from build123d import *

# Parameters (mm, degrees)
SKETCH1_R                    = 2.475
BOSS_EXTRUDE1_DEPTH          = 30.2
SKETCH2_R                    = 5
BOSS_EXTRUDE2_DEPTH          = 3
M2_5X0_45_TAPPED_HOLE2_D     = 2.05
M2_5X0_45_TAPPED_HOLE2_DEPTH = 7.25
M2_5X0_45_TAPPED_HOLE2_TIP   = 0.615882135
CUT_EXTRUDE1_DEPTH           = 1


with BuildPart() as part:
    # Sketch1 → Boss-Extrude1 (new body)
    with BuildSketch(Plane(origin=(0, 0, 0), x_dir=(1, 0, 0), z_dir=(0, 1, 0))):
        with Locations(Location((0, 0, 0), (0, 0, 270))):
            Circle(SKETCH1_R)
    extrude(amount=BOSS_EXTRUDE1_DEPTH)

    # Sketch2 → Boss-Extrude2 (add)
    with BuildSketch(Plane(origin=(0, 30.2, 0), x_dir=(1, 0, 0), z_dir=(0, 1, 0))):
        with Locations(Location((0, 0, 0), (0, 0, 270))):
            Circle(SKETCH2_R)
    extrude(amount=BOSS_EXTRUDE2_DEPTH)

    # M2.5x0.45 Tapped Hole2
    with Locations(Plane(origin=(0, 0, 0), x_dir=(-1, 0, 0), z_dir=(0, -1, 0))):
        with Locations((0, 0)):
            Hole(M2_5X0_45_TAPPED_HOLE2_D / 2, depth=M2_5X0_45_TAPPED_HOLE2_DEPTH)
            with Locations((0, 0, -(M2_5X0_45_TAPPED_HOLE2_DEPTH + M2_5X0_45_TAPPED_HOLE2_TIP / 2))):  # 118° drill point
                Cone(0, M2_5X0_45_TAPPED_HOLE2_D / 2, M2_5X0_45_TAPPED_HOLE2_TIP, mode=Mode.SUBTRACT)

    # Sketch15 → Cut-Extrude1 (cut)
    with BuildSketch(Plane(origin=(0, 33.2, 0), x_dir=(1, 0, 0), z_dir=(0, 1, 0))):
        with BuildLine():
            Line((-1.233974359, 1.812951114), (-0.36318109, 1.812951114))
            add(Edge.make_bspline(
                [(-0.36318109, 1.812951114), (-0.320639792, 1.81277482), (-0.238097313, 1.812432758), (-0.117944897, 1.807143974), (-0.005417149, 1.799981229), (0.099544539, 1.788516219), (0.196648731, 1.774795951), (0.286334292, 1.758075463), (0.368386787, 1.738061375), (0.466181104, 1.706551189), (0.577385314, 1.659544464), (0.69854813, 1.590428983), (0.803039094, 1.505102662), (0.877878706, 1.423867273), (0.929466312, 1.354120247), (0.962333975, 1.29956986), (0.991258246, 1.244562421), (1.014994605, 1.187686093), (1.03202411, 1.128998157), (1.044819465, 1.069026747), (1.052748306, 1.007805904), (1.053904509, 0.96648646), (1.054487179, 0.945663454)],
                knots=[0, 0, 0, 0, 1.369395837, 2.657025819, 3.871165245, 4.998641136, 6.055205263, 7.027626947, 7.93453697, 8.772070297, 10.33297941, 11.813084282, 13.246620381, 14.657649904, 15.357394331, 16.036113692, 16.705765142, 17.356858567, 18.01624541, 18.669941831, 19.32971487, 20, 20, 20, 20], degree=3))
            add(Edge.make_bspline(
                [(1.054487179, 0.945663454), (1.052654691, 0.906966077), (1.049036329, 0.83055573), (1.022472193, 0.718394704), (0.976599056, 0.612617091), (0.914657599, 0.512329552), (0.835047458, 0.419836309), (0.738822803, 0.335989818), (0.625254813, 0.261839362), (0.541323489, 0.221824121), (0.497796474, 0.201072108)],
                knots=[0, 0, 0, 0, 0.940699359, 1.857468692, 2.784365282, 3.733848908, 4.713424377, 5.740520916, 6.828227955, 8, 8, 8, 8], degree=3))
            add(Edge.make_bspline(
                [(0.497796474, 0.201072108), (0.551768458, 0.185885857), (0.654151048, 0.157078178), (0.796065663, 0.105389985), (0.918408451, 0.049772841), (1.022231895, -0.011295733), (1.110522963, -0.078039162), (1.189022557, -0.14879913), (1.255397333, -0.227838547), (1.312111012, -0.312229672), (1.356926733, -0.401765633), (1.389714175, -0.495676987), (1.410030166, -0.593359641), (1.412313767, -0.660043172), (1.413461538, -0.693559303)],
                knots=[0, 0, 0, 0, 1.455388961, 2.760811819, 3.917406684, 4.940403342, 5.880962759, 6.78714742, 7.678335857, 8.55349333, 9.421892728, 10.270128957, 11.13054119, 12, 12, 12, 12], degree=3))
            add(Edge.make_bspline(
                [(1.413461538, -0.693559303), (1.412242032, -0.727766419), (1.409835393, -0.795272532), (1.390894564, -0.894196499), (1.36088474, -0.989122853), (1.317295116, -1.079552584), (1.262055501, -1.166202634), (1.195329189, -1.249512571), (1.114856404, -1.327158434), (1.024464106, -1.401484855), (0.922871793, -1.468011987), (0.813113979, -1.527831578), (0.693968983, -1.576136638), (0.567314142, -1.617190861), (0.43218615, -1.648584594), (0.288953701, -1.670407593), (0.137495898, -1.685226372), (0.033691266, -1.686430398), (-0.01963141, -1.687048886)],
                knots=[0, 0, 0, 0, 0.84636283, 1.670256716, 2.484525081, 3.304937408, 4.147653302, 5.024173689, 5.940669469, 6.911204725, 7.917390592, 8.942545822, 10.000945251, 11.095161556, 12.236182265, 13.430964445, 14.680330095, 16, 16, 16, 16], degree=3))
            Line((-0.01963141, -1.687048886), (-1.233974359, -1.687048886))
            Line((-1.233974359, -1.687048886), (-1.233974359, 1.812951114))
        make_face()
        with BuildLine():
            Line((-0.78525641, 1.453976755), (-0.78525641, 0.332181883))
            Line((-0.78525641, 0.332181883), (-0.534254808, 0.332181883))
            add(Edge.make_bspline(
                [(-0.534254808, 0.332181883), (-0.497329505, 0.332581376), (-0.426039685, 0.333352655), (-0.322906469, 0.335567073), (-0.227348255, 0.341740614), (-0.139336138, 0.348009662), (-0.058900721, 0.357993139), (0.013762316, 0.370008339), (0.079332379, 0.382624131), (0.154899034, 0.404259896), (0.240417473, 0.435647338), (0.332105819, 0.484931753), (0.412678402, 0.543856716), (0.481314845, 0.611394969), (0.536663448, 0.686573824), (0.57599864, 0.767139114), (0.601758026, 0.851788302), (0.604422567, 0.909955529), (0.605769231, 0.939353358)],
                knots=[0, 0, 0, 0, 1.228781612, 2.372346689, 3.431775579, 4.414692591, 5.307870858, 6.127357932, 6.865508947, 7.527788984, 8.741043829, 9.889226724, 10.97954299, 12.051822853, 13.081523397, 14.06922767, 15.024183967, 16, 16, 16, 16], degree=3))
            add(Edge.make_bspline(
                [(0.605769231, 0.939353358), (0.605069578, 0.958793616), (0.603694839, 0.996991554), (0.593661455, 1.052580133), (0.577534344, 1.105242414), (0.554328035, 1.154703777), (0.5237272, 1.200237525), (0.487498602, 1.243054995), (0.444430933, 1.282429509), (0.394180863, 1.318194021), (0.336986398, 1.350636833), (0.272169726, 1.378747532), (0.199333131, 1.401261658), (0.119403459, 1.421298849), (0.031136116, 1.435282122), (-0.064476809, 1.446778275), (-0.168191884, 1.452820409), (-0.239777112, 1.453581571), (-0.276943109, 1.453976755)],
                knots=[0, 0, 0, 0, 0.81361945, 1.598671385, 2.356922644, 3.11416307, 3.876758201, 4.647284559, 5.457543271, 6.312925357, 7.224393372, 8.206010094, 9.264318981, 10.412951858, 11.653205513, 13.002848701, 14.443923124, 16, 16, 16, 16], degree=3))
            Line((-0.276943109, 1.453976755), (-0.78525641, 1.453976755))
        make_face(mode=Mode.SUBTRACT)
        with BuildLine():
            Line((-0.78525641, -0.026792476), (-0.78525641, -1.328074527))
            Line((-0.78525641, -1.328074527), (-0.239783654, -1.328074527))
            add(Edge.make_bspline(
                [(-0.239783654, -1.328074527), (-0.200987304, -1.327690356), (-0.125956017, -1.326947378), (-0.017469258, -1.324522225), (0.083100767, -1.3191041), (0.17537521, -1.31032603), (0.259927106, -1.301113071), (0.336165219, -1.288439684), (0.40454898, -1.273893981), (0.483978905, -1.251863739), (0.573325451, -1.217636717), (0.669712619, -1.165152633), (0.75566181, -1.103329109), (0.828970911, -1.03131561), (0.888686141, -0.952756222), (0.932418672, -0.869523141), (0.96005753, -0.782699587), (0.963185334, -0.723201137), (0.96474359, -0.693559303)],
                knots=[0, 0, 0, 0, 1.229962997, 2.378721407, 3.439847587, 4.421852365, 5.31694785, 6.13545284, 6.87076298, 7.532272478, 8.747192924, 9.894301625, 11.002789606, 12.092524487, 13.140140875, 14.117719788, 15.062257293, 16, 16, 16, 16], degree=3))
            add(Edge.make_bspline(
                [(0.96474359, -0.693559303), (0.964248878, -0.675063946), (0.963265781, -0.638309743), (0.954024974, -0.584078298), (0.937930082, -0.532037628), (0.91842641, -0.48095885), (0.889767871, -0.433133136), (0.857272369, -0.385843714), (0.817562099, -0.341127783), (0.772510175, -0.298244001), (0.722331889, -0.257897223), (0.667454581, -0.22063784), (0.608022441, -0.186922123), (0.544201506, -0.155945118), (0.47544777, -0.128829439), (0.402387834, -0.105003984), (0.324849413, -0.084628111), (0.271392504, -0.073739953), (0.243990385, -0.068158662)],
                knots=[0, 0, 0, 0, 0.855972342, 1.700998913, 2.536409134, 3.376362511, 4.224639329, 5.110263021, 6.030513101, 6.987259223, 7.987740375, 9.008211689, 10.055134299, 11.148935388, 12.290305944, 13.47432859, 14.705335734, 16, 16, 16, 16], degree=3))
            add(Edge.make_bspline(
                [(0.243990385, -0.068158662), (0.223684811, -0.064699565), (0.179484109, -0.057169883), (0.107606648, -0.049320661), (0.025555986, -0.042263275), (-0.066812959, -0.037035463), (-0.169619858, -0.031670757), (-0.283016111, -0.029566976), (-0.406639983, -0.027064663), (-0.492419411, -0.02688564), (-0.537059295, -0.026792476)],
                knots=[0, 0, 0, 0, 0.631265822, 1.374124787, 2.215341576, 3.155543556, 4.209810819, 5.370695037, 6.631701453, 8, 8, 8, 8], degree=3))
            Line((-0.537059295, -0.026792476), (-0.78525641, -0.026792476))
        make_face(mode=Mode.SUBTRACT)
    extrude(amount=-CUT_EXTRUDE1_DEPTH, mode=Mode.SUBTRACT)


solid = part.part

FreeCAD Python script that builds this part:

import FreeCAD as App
import Part
import Sketcher
Q = App.Units.Quantity

doc = App.newDocument("Part")
body = doc.addObject("PartDesign::Body", "Body")

# Sketch on XZ plane
sketch1 = body.newObject("Sketcher::SketchObject", "Sketch")
sketch1.AttachmentSupport = (doc.getObject("XZ_Plane"), [""])
sketch1.MapMode = "FlatFace"
sketch1.addGeometry(Part.Circle(App.Vector(0, 0, 0), App.Vector(0, 0, 1), 2.5), False)
sketch1.addConstraint([
    Sketcher.Constraint("Coincident", 0, 3, -1, 1),
    Sketcher.Constraint("Diameter", 0, Q("4.95 mm")),
])
pad1 = body.newObject("PartDesign::Pad", "Pad")
pad1.Profile = sketch1
pad1.Length = 30.2
pad1.Reversed = True

# Sketch on XZ plane
sketch2 = body.newObject("Sketcher::SketchObject", "Sketch001")
sketch2.AttachmentSupport = (doc.getObject("XZ_Plane"), [""])
sketch2.MapMode = "FlatFace"
sketch2.AttachmentOffset = App.Placement(App.Vector(0, 0, -30.2), App.Rotation())
sketch2.addGeometry(Part.Circle(App.Vector(0, 0, 0), App.Vector(0, 0, 1), 5), False)
sketch2.addConstraint([
    Sketcher.Constraint("Coincident", 0, 3, -1, 1),
    Sketcher.Constraint("Diameter", 0, Q("10 mm")),
])
pad2 = body.newObject("PartDesign::Pad", "Pad001")
pad2.Profile = sketch2
pad2.Length = 3
pad2.Reversed = True

# Sketch on XZ plane
sketch3 = body.newObject("Sketcher::SketchObject", "Sketch002")
sketch3.AttachmentSupport = (doc.getObject("XZ_Plane"), [""])
sketch3.MapMode = "FlatFace"
sketch3.addGeometry(Part.Circle(App.Vector(0, 0, 0), App.Vector(0, 0, 1), 1), False)
sketch3.addConstraint([
    Sketcher.Constraint("Coincident", 0, 3, -1, 1),
    Sketcher.Constraint("Diameter", 0, Q("2.05 mm")),
])
doc.recompute()
hole = body.newObject("PartDesign::Hole", "Hole")
hole.Profile = sketch3
hole.ThreadType = "None"
hole.Diameter = 2.05
hole.DepthType = "Dimension"
hole.Depth = 7.25
hole.DrillPoint = "Angled"
hole.DrillPointAngle = 118

# Sketch on XZ plane
sketch4 = body.newObject("Sketcher::SketchObject", "Sketch003")
sketch4.AttachmentSupport = (doc.getObject("XZ_Plane"), [""])
sketch4.MapMode = "FlatFace"
sketch4.AttachmentOffset = App.Placement(App.Vector(0, 0, -33.2), App.Rotation())
sketch4.addGeometry([
    Part.LineSegment(App.Vector(-0.363181, -1.812951, 0), App.Vector(-1.233974, -1.812951, 0)),  # 0
    Part.LineSegment(App.Vector(-1.233974, -1.812951, 0), App.Vector(-1.233974, 1.687049, 0)),  # 1
    Part.LineSegment(App.Vector(-1.233974, 1.687049, 0), App.Vector(-0.019631, 1.687049, 0)),  # 2
    Part.BSplineCurve([App.Vector(1.413462, 0.693559, 0), App.Vector(1.412242, 0.727766, 0), App.Vector(1.409835, 0.795273, 0), App.Vector(1.390895, 0.894196, 0), App.Vector(1.360885, 0.989123, 0), App.Vector(1.317295, 1.079553, 0), App.Vector(1.262056, 1.166203, 0), App.Vector(1.195329, 1.249513, 0), App.Vector(1.114856, 1.327158, 0), App.Vector(1.024464, 1.401485, 0), App.Vector(0.922872, 1.468012, 0), App.Vector(0.813114, 1.527832, 0), App.Vector(0.693969, 1.576137, 0), App.Vector(0.567314, 1.617191, 0), App.Vector(0.432186, 1.648585, 0), App.Vector(0.288954, 1.670408, 0), App.Vector(0.137496, 1.685226, 0), App.Vector(0.033691, 1.68643, 0), App.Vector(-0.019631, 1.687049, 0)], [4, 1, 1, 1, 1, 1, 1, 1, 1, 1, 1, 1, 1, 1, 1, 1, 4], [0, 0.84636283, 1.670256716, 2.484525081, 3.304937408, 4.147653302, 5.024173689, 5.940669469, 6.911204725, 7.917390592, 8.942545822, 10.000945251, 11.095161556, 12.236182265, 13.430964445, 14.680330095, 16], False, 3, [1, 1, 1, 1, 1, 1, 1, 1, 1, 1, 1, 1, 1, 1, 1, 1, 1, 1, 1], False),  # 3
    Part.BSplineCurve([App.Vector(0.497796, -0.201072, 0), App.Vector(0.551768, -0.185886, 0), App.Vector(0.654151, -0.157078, 0), App.Vector(0.796066, -0.10539, 0), App.Vector(0.918408, -0.049773, 0), App.Vector(1.022232, 0.011296, 0), App.Vector(1.110523, 0.078039, 0), App.Vector(1.189023, 0.148799, 0), App.Vector(1.255397, 0.227839, 0), App.Vector(1.312111, 0.31223, 0), App.Vector(1.356927, 0.401766, 0), App.Vector(1.389714, 0.495677, 0), App.Vector(1.41003, 0.59336, 0), App.Vector(1.412314, 0.660043, 0), App.Vector(1.413462, 0.693559, 0)], [4, 1, 1, 1, 1, 1, 1, 1, 1, 1, 1, 1, 4], [0, 1.455388961, 2.760811819, 3.917406684, 4.940403342, 5.880962759, 6.78714742, 7.678335857, 8.55349333, 9.421892728, 10.270128957, 11.13054119, 12], False, 3, [1, 1, 1, 1, 1, 1, 1, 1, 1, 1, 1, 1, 1, 1, 1], False),  # 4
    Part.BSplineCurve([App.Vector(1.054487, -0.945663, 0), App.Vector(1.052655, -0.906966, 0), App.Vector(1.049036, -0.830556, 0), App.Vector(1.022472, -0.718395, 0), App.Vector(0.976599, -0.612617, 0), App.Vector(0.914658, -0.51233, 0), App.Vector(0.835047, -0.419836, 0), App.Vector(0.738823, -0.33599, 0), App.Vector(0.625255, -0.261839, 0), App.Vector(0.541323, -0.221824, 0), App.Vector(0.497796, -0.201072, 0)], [4, 1, 1, 1, 1, 1, 1, 1, 4], [0, 0.940699359, 1.857468692, 2.784365282, 3.733848908, 4.713424377, 5.740520916, 6.828227955, 8], False, 3, [1, 1, 1, 1, 1, 1, 1, 1, 1, 1, 1], False),  # 5
    Part.BSplineCurve([App.Vector(-0.363181, -1.812951, 0), App.Vector(-0.32064, -1.812775, 0), App.Vector(-0.238097, -1.812433, 0), App.Vector(-0.117945, -1.807144, 0), App.Vector(-0.005417, -1.799981, 0), App.Vector(0.099545, -1.788516, 0), App.Vector(0.196649, -1.774796, 0), App.Vector(0.286334, -1.758075, 0), App.Vector(0.368387, -1.738061, 0), App.Vector(0.466181, -1.706551, 0), App.Vector(0.577385, -1.659544, 0), App.Vector(0.698548, -1.590429, 0), App.Vector(0.803039, -1.505103, 0), App.Vector(0.877879, -1.423867, 0), App.Vector(0.929466, -1.35412, 0), App.Vector(0.962334, -1.29957, 0), App.Vector(0.991258, -1.244562, 0), App.Vector(1.014995, -1.187686, 0), App.Vector(1.032024, -1.128998, 0), App.Vector(1.044819, -1.069027, 0), App.Vector(1.052748, -1.007806, 0), App.Vector(1.053905, -0.966486, 0), App.Vector(1.054487, -0.945663, 0)], [4, 1, 1, 1, 1, 1, 1, 1, 1, 1, 1, 1, 1, 1, 1, 1, 1, 1, 1, 1, 4], [0, 1.369395837, 2.657025819, 3.871165245, 4.998641136, 6.055205263, 7.027626947, 7.93453697, 8.772070297, 10.33297941, 11.813084282, 13.246620381, 14.657649904, 15.357394331, 16.036113692, 16.705765142, 17.356858567, 18.01624541, 18.669941831, 19.32971487, 20], False, 3, [1, 1, 1, 1, 1, 1, 1, 1, 1, 1, 1, 1, 1, 1, 1, 1, 1, 1, 1, 1, 1, 1, 1], False),  # 6
    Part.LineSegment(App.Vector(-0.785256, 0.026792, 0), App.Vector(-0.537059, 0.026792, 0)),  # 7
    Part.BSplineCurve([App.Vector(0.24399, 0.068159, 0), App.Vector(0.223685, 0.0647, 0), App.Vector(0.179484, 0.05717, 0), App.Vector(0.107607, 0.049321, 0), App.Vector(0.025556, 0.042263, 0), App.Vector(-0.066813, 0.037035, 0), App.Vector(-0.16962, 0.031671, 0), App.Vector(-0.283016, 0.029567, 0), App.Vector(-0.40664, 0.027065, 0), App.Vector(-0.492419, 0.026886, 0), App.Vector(-0.537059, 0.026792, 0)], [4, 1, 1, 1, 1, 1, 1, 1, 4], [0, 0.631265822, 1.374124787, 2.215341576, 3.155543556, 4.209810819, 5.370695037, 6.631701453, 8], False, 3, [1, 1, 1, 1, 1, 1, 1, 1, 1, 1, 1], False),  # 8
    Part.BSplineCurve([App.Vector(0.964744, 0.693559, 0), App.Vector(0.964249, 0.675064, 0), App.Vector(0.963266, 0.63831, 0), App.Vector(0.954025, 0.584078, 0), App.Vector(0.93793, 0.532038, 0), App.Vector(0.918426, 0.480959, 0), App.Vector(0.889768, 0.433133, 0), App.Vector(0.857272, 0.385844, 0), App.Vector(0.817562, 0.341128, 0), App.Vector(0.77251, 0.298244, 0), App.Vector(0.722332, 0.257897, 0), App.Vector(0.667455, 0.220638, 0), App.Vector(0.608022, 0.186922, 0), App.Vector(0.544202, 0.155945, 0), App.Vector(0.475448, 0.128829, 0), App.Vector(0.402388, 0.105004, 0), App.Vector(0.324849, 0.084628, 0), App.Vector(0.271393, 0.07374, 0), App.Vector(0.24399, 0.068159, 0)], [4, 1, 1, 1, 1, 1, 1, 1, 1, 1, 1, 1, 1, 1, 1, 1, 4], [0, 0.855972342, 1.700998913, 2.536409134, 3.376362511, 4.224639329, 5.110263021, 6.030513101, 6.987259223, 7.987740375, 9.008211689, 10.055134299, 11.148935388, 12.290305944, 13.47432859, 14.705335734, 16], False, 3, [1, 1, 1, 1, 1, 1, 1, 1, 1, 1, 1, 1, 1, 1, 1, 1, 1, 1, 1], False),  # 9
    Part.BSplineCurve([App.Vector(-0.239784, 1.328075, 0), App.Vector(-0.200987, 1.32769, 0), App.Vector(-0.125956, 1.326947, 0), App.Vector(-0.017469, 1.324522, 0), App.Vector(0.083101, 1.319104, 0), App.Vector(0.175375, 1.310326, 0), App.Vector(0.259927, 1.301113, 0), App.Vector(0.336165, 1.28844, 0), App.Vector(0.404549, 1.273894, 0), App.Vector(0.483979, 1.251864, 0), App.Vector(0.573325, 1.217637, 0), App.Vector(0.669713, 1.165153, 0), App.Vector(0.755662, 1.103329, 0), App.Vector(0.828971, 1.031316, 0), App.Vector(0.888686, 0.952756, 0), App.Vector(0.932419, 0.869523, 0), App.Vector(0.960058, 0.7827, 0), App.Vector(0.963185, 0.723201, 0), App.Vector(0.964744, 0.693559, 0)], [4, 1, 1, 1, 1, 1, 1, 1, 1, 1, 1, 1, 1, 1, 1, 1, 4], [0, 1.229962997, 2.378721407, 3.439847587, 4.421852365, 5.31694785, 6.13545284, 6.87076298, 7.532272478, 8.747192924, 9.894301625, 11.002789606, 12.092524487, 13.140140875, 14.117719788, 15.062257293, 16], False, 3, [1, 1, 1, 1, 1, 1, 1, 1, 1, 1, 1, 1, 1, 1, 1, 1, 1, 1, 1], False),  # 10
    Part.LineSegment(App.Vector(-0.239784, 1.328075, 0), App.Vector(-0.785256, 1.328075, 0)),  # 11
    Part.LineSegment(App.Vector(-0.785256, 1.328075, 0), App.Vector(-0.785256, 0.026792, 0)),  # 12
    Part.LineSegment(App.Vector(-0.785256, -1.453977, 0), App.Vector(-0.276943, -1.453977, 0)),  # 13
    Part.BSplineCurve([App.Vector(0.605769, -0.939353, 0), App.Vector(0.60507, -0.958794, 0), App.Vector(0.603695, -0.996992, 0), App.Vector(0.593661, -1.05258, 0), App.Vector(0.577534, -1.105242, 0), App.Vector(0.554328, -1.154704, 0), App.Vector(0.523727, -1.200238, 0), App.Vector(0.487499, -1.243055, 0), App.Vector(0.444431, -1.28243, 0), App.Vector(0.394181, -1.318194, 0), App.Vector(0.336986, -1.350637, 0), App.Vector(0.27217, -1.378748, 0), App.Vector(0.199333, -1.401262, 0), App.Vector(0.119403, -1.421299, 0), App.Vector(0.031136, -1.435282, 0), App.Vector(-0.064477, -1.446778, 0), App.Vector(-0.168192, -1.45282, 0), App.Vector(-0.239777, -1.453582, 0), App.Vector(-0.276943, -1.453977, 0)], [4, 1, 1, 1, 1, 1, 1, 1, 1, 1, 1, 1, 1, 1, 1, 1, 4], [0, 0.81361945, 1.598671385, 2.356922644, 3.11416307, 3.876758201, 4.647284559, 5.457543271, 6.312925357, 7.224393372, 8.206010094, 9.264318981, 10.412951858, 11.653205513, 13.002848701, 14.443923124, 16], False, 3, [1, 1, 1, 1, 1, 1, 1, 1, 1, 1, 1, 1, 1, 1, 1, 1, 1, 1, 1], False),  # 14
    Part.BSplineCurve([App.Vector(-0.534255, -0.332182, 0), App.Vector(-0.49733, -0.332581, 0), App.Vector(-0.42604, -0.333353, 0), App.Vector(-0.322906, -0.335567, 0), App.Vector(-0.227348, -0.341741, 0), App.Vector(-0.139336, -0.34801, 0), App.Vector(-0.058901, -0.357993, 0), App.Vector(0.013762, -0.370008, 0), App.Vector(0.079332, -0.382624, 0), App.Vector(0.154899, -0.40426, 0), App.Vector(0.240417, -0.435647, 0), App.Vector(0.332106, -0.484932, 0), App.Vector(0.412678, -0.543857, 0), App.Vector(0.481315, -0.611395, 0), App.Vector(0.536663, -0.686574, 0), App.Vector(0.575999, -0.767139, 0), App.Vector(0.601758, -0.851788, 0), App.Vector(0.604423, -0.909956, 0), App.Vector(0.605769, -0.939353, 0)], [4, 1, 1, 1, 1, 1, 1, 1, 1, 1, 1, 1, 1, 1, 1, 1, 4], [0, 1.228781612, 2.372346689, 3.431775579, 4.414692591, 5.307870858, 6.127357932, 6.865508947, 7.527788984, 8.741043829, 9.889226724, 10.97954299, 12.051822853, 13.081523397, 14.06922767, 15.024183967, 16], False, 3, [1, 1, 1, 1, 1, 1, 1, 1, 1, 1, 1, 1, 1, 1, 1, 1, 1, 1, 1], False),  # 15
    Part.LineSegment(App.Vector(-0.534255, -0.332182, 0), App.Vector(-0.785256, -0.332182, 0)),  # 16
    Part.LineSegment(App.Vector(-0.785256, -0.332182, 0), App.Vector(-0.785256, -1.453977, 0)),  # 17
], False)
sketch4.addConstraint([
    Sketcher.Constraint("Block", 3),
    Sketcher.Constraint("Block", 4),
    Sketcher.Constraint("Block", 5),
    Sketcher.Constraint("Block", 6),
    Sketcher.Constraint("Block", 8),
    Sketcher.Constraint("Block", 9),
    Sketcher.Constraint("Block", 10),
    Sketcher.Constraint("Block", 14),
    Sketcher.Constraint("Block", 15),
    Sketcher.Constraint("Coincident", 0, 2, 1, 1),
    Sketcher.Constraint("Coincident", 1, 2, 2, 1),
    Sketcher.Constraint("Coincident", 2, 2, 3, 2),
    Sketcher.Constraint("Coincident", 6, 1, 0, 1),
    Sketcher.Constraint("Coincident", 7, 2, 8, 2),
    Sketcher.Constraint("Coincident", 10, 1, 11, 1),
    Sketcher.Constraint("Coincident", 11, 2, 12, 1),
    Sketcher.Constraint("Coincident", 12, 2, 7, 1),
    Sketcher.Constraint("Coincident", 13, 2, 14, 2),
    Sketcher.Constraint("Coincident", 15, 1, 16, 1),
    Sketcher.Constraint("Coincident", 16, 2, 17, 1),
    Sketcher.Constraint("Coincident", 17, 2, 13, 1),
    Sketcher.Constraint("Horizontal", 0),
    Sketcher.Constraint("Vertical", 1),
    Sketcher.Constraint("Horizontal", 2),
    Sketcher.Constraint("Horizontal", 7),
    Sketcher.Constraint("Horizontal", 11),
    Sketcher.Constraint("Vertical", 12),
    Sketcher.Constraint("Horizontal", 13),
    Sketcher.Constraint("Horizontal", 16),
    Sketcher.Constraint("Vertical", 17),
    Sketcher.Constraint("Vertical", 12, 2, 16, 2),
    Sketcher.Constraint("DistanceX", 16, 2, 16, 1, Q("0.251002 mm")),
    Sketcher.Constraint("DistanceX", 0, 2, 0, 1, Q("0.870793 mm")),
])
pocket1 = body.newObject("PartDesign::Pocket", "Pocket")
pocket1.Profile = sketch4
pocket1.Length = 1
pocket1.Reversed = True

doc.recompute()
